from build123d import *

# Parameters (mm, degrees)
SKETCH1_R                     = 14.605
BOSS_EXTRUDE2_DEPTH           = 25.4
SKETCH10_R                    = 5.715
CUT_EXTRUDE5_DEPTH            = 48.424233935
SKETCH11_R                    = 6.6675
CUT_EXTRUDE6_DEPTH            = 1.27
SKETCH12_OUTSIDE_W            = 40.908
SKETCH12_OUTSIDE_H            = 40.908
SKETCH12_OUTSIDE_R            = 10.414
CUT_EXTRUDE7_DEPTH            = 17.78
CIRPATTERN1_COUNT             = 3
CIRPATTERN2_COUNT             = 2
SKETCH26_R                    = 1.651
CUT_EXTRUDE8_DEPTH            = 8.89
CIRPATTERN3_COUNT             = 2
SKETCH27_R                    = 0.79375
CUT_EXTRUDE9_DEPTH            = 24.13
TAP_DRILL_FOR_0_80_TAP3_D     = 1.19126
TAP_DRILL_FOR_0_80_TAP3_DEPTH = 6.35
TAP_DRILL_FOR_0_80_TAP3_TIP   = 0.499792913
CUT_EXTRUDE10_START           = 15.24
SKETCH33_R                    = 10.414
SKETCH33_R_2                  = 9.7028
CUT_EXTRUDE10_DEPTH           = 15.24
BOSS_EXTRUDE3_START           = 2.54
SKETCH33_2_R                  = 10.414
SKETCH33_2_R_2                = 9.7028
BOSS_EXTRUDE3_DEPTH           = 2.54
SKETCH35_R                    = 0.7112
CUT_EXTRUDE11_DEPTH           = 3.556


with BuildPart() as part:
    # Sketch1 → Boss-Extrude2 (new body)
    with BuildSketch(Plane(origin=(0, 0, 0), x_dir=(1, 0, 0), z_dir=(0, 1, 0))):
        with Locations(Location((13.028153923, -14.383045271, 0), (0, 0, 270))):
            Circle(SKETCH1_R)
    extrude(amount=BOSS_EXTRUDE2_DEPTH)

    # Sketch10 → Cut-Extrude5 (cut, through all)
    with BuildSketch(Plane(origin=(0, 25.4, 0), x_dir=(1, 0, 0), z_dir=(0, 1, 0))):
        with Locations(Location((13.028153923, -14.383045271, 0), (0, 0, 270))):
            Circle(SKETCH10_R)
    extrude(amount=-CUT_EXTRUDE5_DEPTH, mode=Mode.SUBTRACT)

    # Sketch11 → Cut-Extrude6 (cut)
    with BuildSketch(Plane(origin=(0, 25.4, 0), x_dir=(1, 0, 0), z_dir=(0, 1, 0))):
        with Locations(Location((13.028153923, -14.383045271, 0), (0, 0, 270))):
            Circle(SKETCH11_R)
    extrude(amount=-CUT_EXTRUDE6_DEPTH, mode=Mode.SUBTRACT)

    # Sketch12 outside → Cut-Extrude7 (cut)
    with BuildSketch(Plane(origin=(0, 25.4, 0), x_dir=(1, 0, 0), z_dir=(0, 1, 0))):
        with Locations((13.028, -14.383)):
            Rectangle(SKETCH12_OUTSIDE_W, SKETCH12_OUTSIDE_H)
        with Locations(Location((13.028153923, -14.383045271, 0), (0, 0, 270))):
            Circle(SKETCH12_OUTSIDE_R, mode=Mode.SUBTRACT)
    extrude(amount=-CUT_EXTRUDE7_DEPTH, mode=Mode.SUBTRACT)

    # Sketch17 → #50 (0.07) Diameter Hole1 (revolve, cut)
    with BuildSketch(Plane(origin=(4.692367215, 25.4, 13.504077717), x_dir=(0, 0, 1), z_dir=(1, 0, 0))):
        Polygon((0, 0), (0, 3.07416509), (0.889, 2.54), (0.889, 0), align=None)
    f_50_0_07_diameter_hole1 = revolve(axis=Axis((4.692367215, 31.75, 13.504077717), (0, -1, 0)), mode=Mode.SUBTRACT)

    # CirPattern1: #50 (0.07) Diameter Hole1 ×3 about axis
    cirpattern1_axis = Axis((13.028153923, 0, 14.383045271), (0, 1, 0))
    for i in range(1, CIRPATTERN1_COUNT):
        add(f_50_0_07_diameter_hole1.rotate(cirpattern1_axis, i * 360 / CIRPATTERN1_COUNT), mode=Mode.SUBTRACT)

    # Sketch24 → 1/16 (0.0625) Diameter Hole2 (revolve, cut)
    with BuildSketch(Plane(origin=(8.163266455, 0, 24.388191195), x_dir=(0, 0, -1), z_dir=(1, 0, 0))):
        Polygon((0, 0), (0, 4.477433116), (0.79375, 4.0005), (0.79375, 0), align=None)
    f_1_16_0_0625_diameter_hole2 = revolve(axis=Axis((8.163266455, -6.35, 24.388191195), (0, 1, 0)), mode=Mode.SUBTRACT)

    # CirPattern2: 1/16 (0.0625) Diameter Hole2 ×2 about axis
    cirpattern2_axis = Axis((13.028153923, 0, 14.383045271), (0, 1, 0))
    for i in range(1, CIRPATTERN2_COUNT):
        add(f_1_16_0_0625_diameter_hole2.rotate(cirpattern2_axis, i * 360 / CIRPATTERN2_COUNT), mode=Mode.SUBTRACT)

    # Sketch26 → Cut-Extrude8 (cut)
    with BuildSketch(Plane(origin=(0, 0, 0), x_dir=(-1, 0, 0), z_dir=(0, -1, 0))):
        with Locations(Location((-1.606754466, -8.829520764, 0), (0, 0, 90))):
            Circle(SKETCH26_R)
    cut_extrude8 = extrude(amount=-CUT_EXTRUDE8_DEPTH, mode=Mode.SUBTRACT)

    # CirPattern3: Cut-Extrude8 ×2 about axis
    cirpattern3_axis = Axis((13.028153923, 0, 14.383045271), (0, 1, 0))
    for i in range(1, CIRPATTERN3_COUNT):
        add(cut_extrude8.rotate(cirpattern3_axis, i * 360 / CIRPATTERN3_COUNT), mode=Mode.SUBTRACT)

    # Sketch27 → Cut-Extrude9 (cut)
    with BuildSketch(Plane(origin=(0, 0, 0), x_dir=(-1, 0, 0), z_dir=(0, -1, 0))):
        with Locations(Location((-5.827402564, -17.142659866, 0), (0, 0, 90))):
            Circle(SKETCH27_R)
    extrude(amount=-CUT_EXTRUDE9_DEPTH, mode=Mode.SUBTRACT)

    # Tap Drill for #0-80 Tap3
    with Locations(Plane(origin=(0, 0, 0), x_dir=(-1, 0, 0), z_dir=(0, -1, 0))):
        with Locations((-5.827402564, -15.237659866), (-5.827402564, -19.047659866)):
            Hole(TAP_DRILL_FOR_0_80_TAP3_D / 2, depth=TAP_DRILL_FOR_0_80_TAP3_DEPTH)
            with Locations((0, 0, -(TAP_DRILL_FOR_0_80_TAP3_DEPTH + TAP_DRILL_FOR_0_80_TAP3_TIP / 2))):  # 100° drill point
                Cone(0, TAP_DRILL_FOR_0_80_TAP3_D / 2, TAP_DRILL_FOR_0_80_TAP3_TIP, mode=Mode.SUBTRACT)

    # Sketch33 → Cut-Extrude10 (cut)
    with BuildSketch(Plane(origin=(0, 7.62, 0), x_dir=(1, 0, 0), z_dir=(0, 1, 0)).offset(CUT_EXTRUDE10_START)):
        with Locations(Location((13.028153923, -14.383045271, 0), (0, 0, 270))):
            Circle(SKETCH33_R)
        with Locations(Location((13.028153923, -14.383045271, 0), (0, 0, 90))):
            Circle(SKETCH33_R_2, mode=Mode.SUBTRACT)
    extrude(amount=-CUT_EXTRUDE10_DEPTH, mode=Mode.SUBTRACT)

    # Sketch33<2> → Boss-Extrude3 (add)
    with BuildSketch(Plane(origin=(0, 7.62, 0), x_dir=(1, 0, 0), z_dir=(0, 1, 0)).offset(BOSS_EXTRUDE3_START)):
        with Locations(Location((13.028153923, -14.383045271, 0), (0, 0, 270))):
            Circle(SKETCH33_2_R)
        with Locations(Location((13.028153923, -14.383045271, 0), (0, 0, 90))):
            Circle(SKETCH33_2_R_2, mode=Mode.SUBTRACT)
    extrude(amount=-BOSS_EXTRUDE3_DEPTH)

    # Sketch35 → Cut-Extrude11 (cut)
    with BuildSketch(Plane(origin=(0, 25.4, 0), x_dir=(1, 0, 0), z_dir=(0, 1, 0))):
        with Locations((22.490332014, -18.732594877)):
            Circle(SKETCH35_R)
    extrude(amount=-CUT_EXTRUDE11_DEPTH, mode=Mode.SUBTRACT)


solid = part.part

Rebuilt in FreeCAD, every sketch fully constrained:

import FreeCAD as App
import Part
import Sketcher

V = App.Vector
Q = App.Units.Quantity

doc = App.newDocument("Part")
body = doc.addObject("PartDesign::Body", "Body")

# Sketch on XZ plane
sketch1 = doc.addObject("Sketcher::SketchObject", "Sketch")
body.addObject(sketch1)
sketch1.AttachmentSupport = (doc.XZ_Plane, [""])
sketch1.MapMode = "FlatFace"
sketch1.addGeometry(Part.Circle(V(13, 14, 0), V(0, 0, 1), 15), False)
sketch1.addConstraint([
    Sketcher.Constraint("Diameter", 0, Q("1.15 in")),
    Sketcher.Constraint("DistanceX", -1, 1, 0, 3, 13.028154),
    Sketcher.Constraint("DistanceY", -1, 1, 0, 3, 14.383045),
])
pad1 = doc.addObject("PartDesign::Pad", "Pad")
body.addObject(pad1)
pad1.Profile = sketch1
pad1.Length = Q("1 in")
pad1.Reversed = True

# Sketch on XZ plane
sketch2 = doc.addObject("Sketcher::SketchObject", "Sketch001")
body.addObject(sketch2)
sketch2.AttachmentSupport = (doc.XZ_Plane, [""])
sketch2.MapMode = "FlatFace"
sketch2.AttachmentOffset = App.Placement(V(0, 0, -1 * 25.4), App.Rotation())
sketch2.addGeometry(Part.Circle(V(13, 14, 0), V(0, 0, 1), 6), False)
sketch2.addConstraint([
    Sketcher.Constraint("Diameter", 0, Q("0.45 in")),
    Sketcher.Constraint("DistanceX", -1, 1, 0, 3, 13.028154),
    Sketcher.Constraint("DistanceY", -1, 1, 0, 3, 14.383045),
])
pocket1 = doc.addObject("PartDesign::Pocket", "Pocket")
body.addObject(pocket1)
pocket1.Profile = sketch2
pocket1.Type = "ThroughAll"
pocket1.Reversed = True

# Sketch on XZ plane
sketch3 = doc.addObject("Sketcher::SketchObject", "Sketch002")
body.addObject(sketch3)
sketch3.AttachmentSupport = (doc.XZ_Plane, [""])
sketch3.MapMode = "FlatFace"
sketch3.AttachmentOffset = App.Placement(V(0, 0, -1 * 25.4), App.Rotation())
sketch3.addGeometry(Part.Circle(V(13, 14, 0), V(0, 0, 1), 7), False)
sketch3.addConstraint([
    Sketcher.Constraint("Diameter", 0, Q("0.525 in")),
    Sketcher.Constraint("DistanceX", -1, 1, 0, 3, 13.028154),
    Sketcher.Constraint("DistanceY", -1, 1, 0, 3, 14.383045),
])
pocket2 = doc.addObject("PartDesign::Pocket", "Pocket001")
body.addObject(pocket2)
pocket2.Profile = sketch3
pocket2.Length = Q("0.05 in")
pocket2.Reversed = True

# Sketch on XZ plane
sketch4 = doc.addObject("Sketcher::SketchObject", "Sketch003")
body.addObject(sketch4)
sketch4.AttachmentSupport = (doc.XZ_Plane, [""])
sketch4.MapMode = "FlatFace"
sketch4.AttachmentOffset = App.Placement(V(0, 0, -1 * 25.4), App.Rotation())
sketch4.addGeometry([
    Part.LineSegment(V(-7, -6, 0), V(-7, 35, 0)),  # 0
    Part.LineSegment(V(-7, 35, 0), V(33, 35, 0)),  # 1
    Part.LineSegment(V(33, 35, 0), V(33, -6, 0)),  # 2
    Part.LineSegment(V(33, -6, 0), V(-7, -6, 0)),  # 3
    Part.Circle(V(13, 14, 0), V(0, 0, 1), 10),  # 4
], False)
sketch4.addConstraint([
    Sketcher.Constraint("Coincident", 0, 2, 1, 1),
    Sketcher.Constraint("Coincident", 1, 2, 2, 1),
    Sketcher.Constraint("Coincident", 2, 2, 3, 1),
    Sketcher.Constraint("Coincident", 3, 2, 0, 1),
    Sketcher.Constraint("Vertical", 0),
    Sketcher.Constraint("Horizontal", 1),
    Sketcher.Constraint("Vertical", 2),
    Sketcher.Constraint("Horizontal", 3),
    Sketcher.Constraint("Equal", 3, 0),
    Sketcher.Constraint("Diameter", 4, Q("0.82 in")),
    Sketcher.Constraint("DistanceX", 1, 1, 1, 2, 40.908),
    Sketcher.Constraint("DistanceX", 0, 2, -1, 1, 7.426),
    Sketcher.Constraint("DistanceY", -1, 1, 0, 2, 34.837),
    Sketcher.Constraint("DistanceX", -1, 1, 4, 3, 13.028154),
    Sketcher.Constraint("DistanceY", -1, 1, 4, 3, 14.383045),
])
pocket3 = doc.addObject("PartDesign::Pocket", "Pocket002")
body.addObject(pocket3)
pocket3.Profile = sketch4
pocket3.Length = Q("0.7 in")
pocket3.Reversed = True

# Sketch on YZ plane
sketch5 = doc.addObject("Sketcher::SketchObject", "Sketch004")
body.addObject(sketch5)
sketch5.AttachmentSupport = (doc.YZ_Plane, [""])
sketch5.MapMode = "FlatFace"
sketch5.AttachmentOffset = App.Placement(V(0, 0, 4.692367), App.Rotation())
sketch5.addGeometry([
    Part.LineSegment(V(22.3, 13.5, 0), V(25.4, 13.5, 0)),
    Part.LineSegment(V(25.4, 13.5, 0), V(25.4, 14.4, 0)),
    Part.LineSegment(V(25.4, 14.4, 0), V(22.9, 14.4, 0)),
    Part.LineSegment(V(22.9, 14.4, 0), V(22.3, 13.5, 0)),
], False)
sketch5.addGeometry(Part.LineSegment(V(25.4, 13.5, 0), V(22.3, 13.5, 0)), True)  # axis
sketch5.addConstraint([
    Sketcher.Constraint("Coincident", 0, 2, 1, 1),
    Sketcher.Constraint("Coincident", 1, 2, 2, 1),
    Sketcher.Constraint("Coincident", 2, 2, 3, 1),
    Sketcher.Constraint("Coincident", 3, 2, 0, 1),
    Sketcher.Constraint("Horizontal", 0),
    Sketcher.Constraint("Vertical", 1),
    Sketcher.Constraint("Horizontal", 2),
    Sketcher.Constraint("Horizontal", 4),
    Sketcher.Constraint("Coincident", 4, 1, 0, 2),
    Sketcher.Constraint("Equal", 0, 4),
    Sketcher.Constraint("DistanceX", 2, 2, 2, 1, Q("0.1 in")),
    Sketcher.Constraint("DistanceX", -1, 1, 0, 2, Q("1 in")),
    Sketcher.Constraint("Angle", 3, Q("-121 deg")),
    Sketcher.Constraint("DistanceY", 1, 1, 1, 2, Q("0.035 in")),
    Sketcher.Constraint("DistanceY", -1, 1, 0, 2, 13.504078),
])
groove = doc.addObject("PartDesign::Groove", "Groove")
body.addObject(groove)
groove.Profile = sketch5
groove.ReferenceAxis = (sketch5, ["Axis0"])
groove.Angle = 360
doc.recompute()

datumline = doc.addObject("PartDesign::Line", "DatumLine")
body.addObject(datumline)
datumline.Placement = App.Placement(V(13.028154, 0, 14.383045), App.Rotation(V(0, 0, 1), V(0, 1, 0)))
polarpattern = doc.addObject("PartDesign::PolarPattern", "PolarPattern")
body.addObject(polarpattern)
polarpattern.Originals = [groove]
polarpattern.Axis = (datumline, [""])
polarpattern.Angle = 360
polarpattern.Occurrences = 3
body.Tip = polarpattern

# Sketch on YZ plane
sketch6 = doc.addObject("Sketcher::SketchObject", "Sketch005")
body.addObject(sketch6)
sketch6.AttachmentSupport = (doc.YZ_Plane, [""])
sketch6.MapMode = "FlatFace"
sketch6.AttachmentOffset = App.Placement(V(0, 0, 8.163266), App.Rotation())
sketch6.addGeometry([
    Part.LineSegment(V(4.5, 24.4, 0), V(0, 24.4, 0)),
    Part.LineSegment(V(0, 24.4, 0), V(0, 23.6, 0)),
    Part.LineSegment(V(0, 23.6, 0), V(4, 23.6, 0)),
    Part.LineSegment(V(4, 23.6, 0), V(4.5, 24.4, 0)),
], False)
sketch6.addGeometry(Part.LineSegment(V(0, 24.4, 0), V(4.5, 24.4, 0)), True)  # axis
sketch6.addConstraint([
    Sketcher.Constraint("Coincident", 0, 2, 1, 1),
    Sketcher.Constraint("Coincident", 1, 2, 2, 1),
    Sketcher.Constraint("Coincident", 2, 2, 3, 1),
    Sketcher.Constraint("Coincident", 3, 2, 0, 1),
    Sketcher.Constraint("Horizontal", 0),
    Sketcher.Constraint("Vertical", 1),
    Sketcher.Constraint("Horizontal", 2),
    Sketcher.Constraint("Horizontal", 4),
    Sketcher.Constraint("Coincident", 4, 1, 0, 2),
    Sketcher.Constraint("PointOnObject", 0, 2, -2),
    Sketcher.Constraint("Equal", 0, 4),
    Sketcher.Constraint("Angle", 3, Q("59 deg")),
    Sketcher.Constraint("DistanceY", 1, 2, 1, 1, Q("0.03125 in")),
    Sketcher.Constraint("DistanceX", 2, 1, 2, 2, Q("0.1575 in")),
    Sketcher.Constraint("DistanceY", -1, 1, 0, 2, 24.388191),
])
groove2 = doc.addObject("PartDesign::Groove", "Groove001")
body.addObject(groove2)
groove2.Profile = sketch6
groove2.ReferenceAxis = (sketch6, ["Axis0"])
groove2.Angle = 360
doc.recompute()

datumline2 = doc.addObject("PartDesign::Line", "DatumLine001")
body.addObject(datumline2)
datumline2.Placement = App.Placement(V(13.028154, 0, 14.383045), App.Rotation(V(0, 0, 1), V(0, 1, 0)))
polarpattern2 = doc.addObject("PartDesign::PolarPattern", "PolarPattern001")
body.addObject(polarpattern2)
polarpattern2.Originals = [groove2]
polarpattern2.Axis = (datumline2, [""])
polarpattern2.Angle = 360
polarpattern2.Occurrences = 2
body.Tip = polarpattern2

# Sketch on XZ plane
sketch7 = doc.addObject("Sketcher::SketchObject", "Sketch006")
body.addObject(sketch7)
sketch7.AttachmentSupport = (doc.XZ_Plane, [""])
sketch7.MapMode = "FlatFace"
sketch7.addGeometry(Part.Circle(V(1.6, 8.8, 0), V(0, 0, 1), 1.7), False)
sketch7.addConstraint([
    Sketcher.Constraint("Diameter", 0, Q("0.13 in")),
    Sketcher.Constraint("DistanceY", -1, 1, 0, 3, 8.829521),
    Sketcher.Constraint("DistanceX", -1, 1, 0, 3, 1.606754),
])
pocket4 = doc.addObject("PartDesign::Pocket", "Pocket003")
body.addObject(pocket4)
pocket4.Profile = sketch7
pocket4.Length = Q("0.35 in")
doc.recompute()

datumline3 = doc.addObject("PartDesign::Line", "DatumLine002")
body.addObject(datumline3)
datumline3.Placement = App.Placement(V(13.028154, 0, 14.383045), App.Rotation(V(0, 0, 1), V(0, 1, 0)))
polarpattern3 = doc.addObject("PartDesign::PolarPattern", "PolarPattern002")
body.addObject(polarpattern3)
polarpattern3.Originals = [pocket4]
polarpattern3.Axis = (datumline3, [""])
polarpattern3.Angle = 360
polarpattern3.Occurrences = 2
body.Tip = polarpattern3

# Sketch on XZ plane
sketch8 = doc.addObject("Sketcher::SketchObject", "Sketch007")
body.addObject(sketch8)
sketch8.AttachmentSupport = (doc.XZ_Plane, [""])
sketch8.MapMode = "FlatFace"
sketch8.addGeometry(Part.Circle(V(5.8, 17.1, 0), V(0, 0, 1), 0.8), False)
sketch8.addConstraint([
    Sketcher.Constraint("Diameter", 0, Q("0.0625 in")),
    Sketcher.Constraint("DistanceY", -1, 1, 0, 3, 17.14266),
    Sketcher.Constraint("DistanceX", -1, 1, 0, 3, 5.827403),
])
pocket5 = doc.addObject("PartDesign::Pocket", "Pocket004")
body.addObject(pocket5)
pocket5.Profile = sketch8
pocket5.Length = Q("0.95 in")

# Sketch on XZ plane
sketch9 = doc.addObject("Sketcher::SketchObject", "Sketch008")
body.addObject(sketch9)
sketch9.AttachmentSupport = (doc.XZ_Plane, [""])
sketch9.MapMode = "FlatFace"
sketch9.addGeometry([
    Part.Circle(V(5.8, 15.2, 0), V(0, 0, 1), 0.6),
    Part.Circle(V(5.8, 19, 0), V(0, 0, 1), 0.6),
], False)
sketch9.addConstraint([
    Sketcher.Constraint("Equal", 0, 1),
    Sketcher.Constraint("Vertical", 0, 3, 1, 3),
    Sketcher.Constraint("Diameter", 0, Q("0.0469 in")),
    Sketcher.Constraint("DistanceY", 0, 3, 1, 3, Q("0.15 in")),
    Sketcher.Constraint("DistanceY", -1, 1, 0, 3, 15.23766),
    Sketcher.Constraint("DistanceX", -1, 1, 0, 3, 5.827403),
])
doc.recompute()
hole = doc.addObject("PartDesign::Hole", "Hole")
body.addObject(hole)
hole.Profile = sketch9
hole.ThreadType = "None"
hole.Diameter = Q("0.0469 in")
hole.DepthType = "Dimension"
hole.Depth = Q("0.25 in")
hole.DrillPoint = "Angled"
hole.DrillPointAngle = 100

# Sketch on XZ plane
sketch10 = doc.addObject("Sketcher::SketchObject", "Sketch009")
body.addObject(sketch10)
sketch10.AttachmentSupport = (doc.XZ_Plane, [""])
sketch10.MapMode = "FlatFace"
sketch10.AttachmentOffset = App.Placement(V(0, 0, -0.9 * 25.4), App.Rotation())
sketch10.addGeometry([
    Part.Circle(V(13, 14, 0), V(0, 0, 1), 10),
    Part.Circle(V(13, 14, 0), V(0, 0, 1), 10),
], False)
sketch10.addConstraint([
    Sketcher.Constraint("Coincident", 1, 3, 0, 3),
    Sketcher.Constraint("Diameter", 0, Q("0.82 in")),
    Sketcher.Constraint("Diameter", 1, Q("0.764 in")),
    Sketcher.Constraint("DistanceX", -1, 1, 0, 3, 13.028154),
    Sketcher.Constraint("DistanceY", -1, 1, 0, 3, 14.383045),
])
pocket6 = doc.addObject("PartDesign::Pocket", "Pocket005")
body.addObject(pocket6)
pocket6.Profile = sketch10
pocket6.Length = Q("0.6 in")
pocket6.Reversed = True

# Sketch on XZ plane
sketch11 = doc.addObject("Sketcher::SketchObject", "Sketch010")
body.addObject(sketch11)
sketch11.AttachmentSupport = (doc.XZ_Plane, [""])
sketch11.MapMode = "FlatFace"
sketch11.AttachmentOffset = App.Placement(V(0, 0, -0.4 * 25.4), App.Rotation())
sketch11.addGeometry([
    Part.Circle(V(13, 14, 0), V(0, 0, 1), 10),
    Part.Circle(V(13, 14, 0), V(0, 0, 1), 10),
], False)
sketch11.addConstraint([
    Sketcher.Constraint("Coincident", 1, 3, 0, 3),
    Sketcher.Constraint("Diameter", 0, Q("0.82 in")),
    Sketcher.Constraint("Diameter", 1, Q("0.764 in")),
    Sketcher.Constraint("DistanceX", -1, 1, 0, 3, 13.028154),
    Sketcher.Constraint("DistanceY", -1, 1, 0, 3, 14.383045),
])
pad2 = doc.addObject("PartDesign::Pad", "Pad001")
body.addObject(pad2)
pad2.Profile = sketch11
pad2.Length = Q("0.1 in")

# Sketch on XZ plane
sketch12 = doc.addObject("Sketcher::SketchObject", "Sketch011")
body.addObject(sketch12)
sketch12.AttachmentSupport = (doc.XZ_Plane, [""])
sketch12.MapMode = "FlatFace"
sketch12.AttachmentOffset = App.Placement(V(0, 0, -1 * 25.4), App.Rotation())
sketch12.addGeometry(Part.Circle(V(22.5, 18.7, 0), V(0, 0, 1), 0.7), False)
sketch12.addConstraint([
    Sketcher.Constraint("Diameter", 0, Q("0.056 in")),
    Sketcher.Constraint("DistanceX", -1, 1, 0, 3, 22.490332),
    Sketcher.Constraint("DistanceY", -1, 1, 0, 3, 18.732595),
])
pocket7 = doc.addObject("PartDesign::Pocket", "Pocket006")
body.addObject(pocket7)
pocket7.Profile = sketch12
pocket7.Length = Q("0.14 in")
pocket7.Reversed = True

doc.recompute()
